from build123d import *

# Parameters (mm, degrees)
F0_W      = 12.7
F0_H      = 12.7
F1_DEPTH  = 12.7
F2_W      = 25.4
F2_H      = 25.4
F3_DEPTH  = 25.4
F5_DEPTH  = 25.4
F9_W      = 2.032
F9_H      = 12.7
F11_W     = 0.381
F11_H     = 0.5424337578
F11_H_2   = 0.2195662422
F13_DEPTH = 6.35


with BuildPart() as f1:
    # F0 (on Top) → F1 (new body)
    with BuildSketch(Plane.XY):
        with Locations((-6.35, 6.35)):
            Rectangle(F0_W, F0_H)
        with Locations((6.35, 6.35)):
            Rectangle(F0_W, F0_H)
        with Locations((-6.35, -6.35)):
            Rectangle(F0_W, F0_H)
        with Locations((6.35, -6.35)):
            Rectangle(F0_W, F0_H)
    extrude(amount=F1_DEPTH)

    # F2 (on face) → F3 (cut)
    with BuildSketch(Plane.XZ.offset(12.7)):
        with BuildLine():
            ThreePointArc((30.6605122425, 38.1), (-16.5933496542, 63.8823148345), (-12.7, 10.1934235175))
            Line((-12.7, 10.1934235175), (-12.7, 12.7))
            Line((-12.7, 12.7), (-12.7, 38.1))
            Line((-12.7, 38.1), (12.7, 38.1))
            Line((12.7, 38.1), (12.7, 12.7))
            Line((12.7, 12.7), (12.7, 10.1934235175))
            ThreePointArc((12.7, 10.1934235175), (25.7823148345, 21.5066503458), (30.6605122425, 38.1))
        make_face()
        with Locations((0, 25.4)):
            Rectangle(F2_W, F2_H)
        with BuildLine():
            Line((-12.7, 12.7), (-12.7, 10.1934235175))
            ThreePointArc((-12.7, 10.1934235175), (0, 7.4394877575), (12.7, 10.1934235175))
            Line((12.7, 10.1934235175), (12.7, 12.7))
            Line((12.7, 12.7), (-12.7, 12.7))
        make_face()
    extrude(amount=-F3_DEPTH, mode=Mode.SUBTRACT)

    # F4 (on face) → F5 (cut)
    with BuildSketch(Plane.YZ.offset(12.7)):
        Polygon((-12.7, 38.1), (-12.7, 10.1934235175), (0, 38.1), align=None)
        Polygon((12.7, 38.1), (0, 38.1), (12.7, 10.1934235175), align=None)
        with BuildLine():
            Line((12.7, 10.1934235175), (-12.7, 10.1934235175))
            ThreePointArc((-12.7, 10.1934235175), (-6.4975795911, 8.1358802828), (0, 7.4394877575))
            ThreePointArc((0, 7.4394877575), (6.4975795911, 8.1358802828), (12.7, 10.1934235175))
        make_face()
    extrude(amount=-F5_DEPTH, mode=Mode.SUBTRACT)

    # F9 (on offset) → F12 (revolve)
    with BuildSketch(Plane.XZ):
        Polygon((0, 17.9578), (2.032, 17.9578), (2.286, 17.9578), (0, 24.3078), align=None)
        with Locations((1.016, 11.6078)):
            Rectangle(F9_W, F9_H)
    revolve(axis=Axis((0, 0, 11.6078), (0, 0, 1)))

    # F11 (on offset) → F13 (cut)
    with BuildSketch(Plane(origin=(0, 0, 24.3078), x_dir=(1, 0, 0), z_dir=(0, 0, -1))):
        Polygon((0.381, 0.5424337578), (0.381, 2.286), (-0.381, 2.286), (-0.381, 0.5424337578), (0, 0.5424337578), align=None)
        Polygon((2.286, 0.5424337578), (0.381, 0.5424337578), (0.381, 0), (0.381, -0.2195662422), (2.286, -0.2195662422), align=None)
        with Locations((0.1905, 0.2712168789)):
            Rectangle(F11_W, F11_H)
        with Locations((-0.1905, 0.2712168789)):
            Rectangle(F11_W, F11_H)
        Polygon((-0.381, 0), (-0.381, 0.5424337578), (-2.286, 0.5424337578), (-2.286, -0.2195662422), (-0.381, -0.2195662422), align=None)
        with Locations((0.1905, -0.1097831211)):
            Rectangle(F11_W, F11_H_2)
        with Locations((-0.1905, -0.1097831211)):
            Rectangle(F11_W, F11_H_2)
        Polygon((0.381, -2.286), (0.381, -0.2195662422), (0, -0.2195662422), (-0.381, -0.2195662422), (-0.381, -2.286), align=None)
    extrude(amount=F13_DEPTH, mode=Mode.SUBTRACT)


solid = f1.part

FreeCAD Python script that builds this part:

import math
import FreeCAD as App
import Part
import Sketcher
Q = App.Units.Quantity

doc = App.newDocument("Part")
params = doc.addObject("Spreadsheet::Sheet", "Params")
for row, (alias, value) in enumerate([
    ("sketch1_width", "1 in"),
    ("pad1_length", "0.5 in"),
    ("pocket1_length", "1 in"),
    ("sketch3_width", "1 in"),
    ("pocket2_length", "1 in"),
    ("sketch4_height", "0.5 in"),
    ("sketch4_width", "0.01 in"),
    ("sketch4_width2", "0.08 in"),
    ("sketch4_height2", "0.75 in"),
    ("revolution_angle", "360 deg"),
    ("sketch5_width", "0.03 in"),
    ("sketch5_width2", "0.075 in"),
    ("pocket3_length", "0.25 in"),
], start=1):
    params.set(f"A{row}", alias)
    params.set(f"B{row}", "=" + value)
    params.setAlias(f"B{row}", alias)

body = doc.addObject("PartDesign::Body", "Body")

# Sketch on XY plane
sketch1 = body.newObject("Sketcher::SketchObject", "Sketch")
sketch1.AttachmentSupport = (doc.getObject("XY_Plane"), [""])
sketch1.MapMode = "FlatFace"
sketch1.addGeometry(Part.LineSegment(App.Vector(-13, 13, 0), App.Vector(-13, -13, 0)), False)
sketch1.addGeometry(Part.LineSegment(App.Vector(-13, -13, 0), App.Vector(13, -13, 0)), False)
sketch1.addGeometry(Part.LineSegment(App.Vector(13, -13, 0), App.Vector(13, 13, 0)), False)
sketch1.addGeometry(Part.LineSegment(App.Vector(13, 13, 0), App.Vector(-13, 13, 0)), False)
sketch1.addConstraint(Sketcher.Constraint("Coincident", 0, 2, 1, 1))
sketch1.addConstraint(Sketcher.Constraint("Coincident", 1, 2, 2, 1))
sketch1.addConstraint(Sketcher.Constraint("Coincident", 2, 2, 3, 1))
sketch1.addConstraint(Sketcher.Constraint("Coincident", 3, 2, 0, 1))
sketch1.addConstraint(Sketcher.Constraint("Vertical", 0))
sketch1.addConstraint(Sketcher.Constraint("Horizontal", 1))
sketch1.addConstraint(Sketcher.Constraint("Vertical", 2))
sketch1.addConstraint(Sketcher.Constraint("Horizontal", 3))
sketch1.addConstraint(Sketcher.Constraint("Symmetric", 0, 2, 2, 2, -1, 1))
sketch1.addConstraint(Sketcher.Constraint("Equal", 3, 0))
sketch1.addConstraint(Sketcher.Constraint("DistanceX", 1, 1, 1, 2, Q("1 in")))
sketch1.setExpression("Constraints[10]", "Params.sketch1_width")
pad1 = body.newObject("PartDesign::Pad", "Pad")
pad1.Profile = sketch1
pad1.setExpression("Length", "Params.pad1_length")

# Sketch on XZ plane
sketch2 = body.newObject("Sketcher::SketchObject", "Sketch001")
sketch2.AttachmentSupport = (doc.getObject("XZ_Plane"), [""])
sketch2.MapMode = "FlatFace"
sketch2.AttachmentOffset = App.Placement(App.Vector(0, 0, 0.5 * 25.4), App.Rotation())
sketch2.addGeometry(Part.ArcOfCircle(Part.Circle(App.Vector(0, 38, 0), App.Vector(0, 0, 1), 31), math.radians(0), math.radians(246)), False)
sketch2.addGeometry(Part.ArcOfCircle(Part.Circle(App.Vector(0, 38, 0), App.Vector(0, 0, 1), 31), math.radians(-114), math.radians(-66)), False)
sketch2.addGeometry(Part.ArcOfCircle(Part.Circle(App.Vector(0, 38, 0), App.Vector(0, 0, 1), 31), math.radians(-66), math.radians(0)), False)
sketch2.addConstraint(Sketcher.Constraint("Tangent", 0, 2, 1, 1))
sketch2.addConstraint(Sketcher.Constraint("Tangent", 1, 2, 2, 1))
sketch2.addConstraint(Sketcher.Constraint("Tangent", 2, 2, 0, 1))
sketch2.addConstraint(Sketcher.Constraint("Symmetric", 0, 2, 1, 2, -2))
sketch2.addConstraint(Sketcher.Constraint("Horizontal", 1, 3, 2, 2))
sketch2.addConstraint(Sketcher.Constraint("DistanceX", 0, 2, 1, 2, Q("1 in")))
sketch2.addConstraint(Sketcher.Constraint("DistanceY", -1, 1, 0, 3, Q("1.5 in")))
sketch2.addConstraint(Sketcher.Constraint("Radius", 0, Q("30.660512 mm")))
pocket1 = body.newObject("PartDesign::Pocket", "Pocket")
pocket1.Profile = sketch2
pocket1.setExpression("Length", "Params.pocket1_length")

# Sketch on YZ plane
sketch3 = body.newObject("Sketcher::SketchObject", "Sketch002")
sketch3.AttachmentSupport = (doc.getObject("YZ_Plane"), [""])
sketch3.MapMode = "FlatFace"
sketch3.AttachmentOffset = App.Placement(App.Vector(0, 0, 0.5 * 25.4), App.Rotation())
sketch3.addGeometry(Part.LineSegment(App.Vector(-13, 38, 0), App.Vector(-13, 10, 0)), False)
sketch3.addGeometry(Part.LineSegment(App.Vector(-13, 10, 0), App.Vector(0, 38, 0)), False)
sketch3.addGeometry(Part.LineSegment(App.Vector(0, 38, 0), App.Vector(-13, 38, 0)), False)
sketch3.addGeometry(Part.LineSegment(App.Vector(13, 38, 0), App.Vector(0, 38, 0)), False)
sketch3.addGeometry(Part.LineSegment(App.Vector(0, 38, 0), App.Vector(13, 10, 0)), False)
sketch3.addGeometry(Part.LineSegment(App.Vector(13, 10, 0), App.Vector(13, 38, 0)), False)
sketch3.addGeometry(Part.LineSegment(App.Vector(13, 10, 0), App.Vector(-13, 10, 0)), False)
sketch3.addGeometry(Part.ArcOfCircle(Part.Circle(App.Vector(0, 38, 0), App.Vector(0, 0, 1), 31), math.radians(-114), math.radians(-90)), False)
sketch3.addGeometry(Part.ArcOfCircle(Part.Circle(App.Vector(0, 38, 0), App.Vector(0, 0, 1), 31), math.radians(-90), math.radians(-66)), False)
sketch3.addConstraint(Sketcher.Constraint("Coincident", 0, 2, 1, 1))
sketch3.addConstraint(Sketcher.Constraint("Coincident", 1, 2, 2, 1))
sketch3.addConstraint(Sketcher.Constraint("Coincident", 2, 2, 0, 1))
sketch3.addConstraint(Sketcher.Constraint("Coincident", 3, 2, 4, 1))
sketch3.addConstraint(Sketcher.Constraint("Coincident", 4, 2, 5, 1))
sketch3.addConstraint(Sketcher.Constraint("Coincident", 5, 2, 3, 1))
sketch3.addConstraint(Sketcher.Constraint("Coincident", 6, 2, 7, 1))
sketch3.addConstraint(Sketcher.Constraint("Tangent", 7, 2, 8, 1))
sketch3.addConstraint(Sketcher.Constraint("Coincident", 8, 2, 6, 1))
sketch3.addConstraint(Sketcher.Constraint("Vertical", 0))
sketch3.addConstraint(Sketcher.Constraint("Horizontal", 2))
sketch3.addConstraint(Sketcher.Constraint("Horizontal", 3))
sketch3.addConstraint(Sketcher.Constraint("Vertical", 5))
sketch3.addConstraint(Sketcher.Constraint("Horizontal", 6))
sketch3.addConstraint(Sketcher.Constraint("Coincident", 1, 2, 7, 3))
sketch3.addConstraint(Sketcher.Constraint("Coincident", 3, 2, 7, 3))
sketch3.addConstraint(Sketcher.Constraint("Coincident", 6, 2, 0, 2))
sketch3.addConstraint(Sketcher.Constraint("Coincident", 8, 2, 4, 2))
sketch3.addConstraint(Sketcher.Constraint("Equal", 7, 8))
sketch3.addConstraint(Sketcher.Constraint("PointOnObject", 7, 3, -2))
sketch3.addConstraint(Sketcher.Constraint("PointOnObject", 7, 2, -2))
sketch3.addConstraint(Sketcher.Constraint("DistanceX", 6, 2, 6, 1, Q("1 in")))
sketch3.addConstraint(Sketcher.Constraint("DistanceY", -1, 1, 7, 3, Q("1.5 in")))
sketch3.addConstraint(Sketcher.Constraint("Radius", 7, Q("30.660512 mm")))
sketch3.setExpression("Constraints[21]", "Params.sketch3_width")
pocket2 = body.newObject("PartDesign::Pocket", "Pocket001")
pocket2.Profile = sketch3
pocket2.setExpression("Length", "Params.pocket2_length")

# Sketch on XZ plane
sketch4 = body.newObject("Sketcher::SketchObject", "Sketch003")
sketch4.AttachmentSupport = (doc.getObject("XZ_Plane"), [""])
sketch4.MapMode = "FlatFace"
sketch4.addGeometry(Part.LineSegment(App.Vector(2.03, 17.96, 0), App.Vector(2.29, 17.96, 0)), False)
sketch4.addGeometry(Part.LineSegment(App.Vector(2.29, 17.96, 0), App.Vector(0, 24.31, 0)), False)
sketch4.addGeometry(Part.LineSegment(App.Vector(0, 24.31, 0), App.Vector(0, 5.26, 0)), False)
sketch4.addGeometry(Part.LineSegment(App.Vector(0, 5.26, 0), App.Vector(2.03, 5.26, 0)), False)
sketch4.addGeometry(Part.LineSegment(App.Vector(2.03, 5.26, 0), App.Vector(2.03, 17.96, 0)), False)
sketch4.addConstraint(Sketcher.Constraint("Coincident", 0, 2, 1, 1))
sketch4.addConstraint(Sketcher.Constraint("Coincident", 1, 2, 2, 1))
sketch4.addConstraint(Sketcher.Constraint("Coincident", 2, 2, 3, 1))
sketch4.addConstraint(Sketcher.Constraint("Coincident", 3, 2, 4, 1))
sketch4.addConstraint(Sketcher.Constraint("Coincident", 4, 2, 0, 1))
sketch4.addConstraint(Sketcher.Constraint("Horizontal", 0))
sketch4.addConstraint(Sketcher.Constraint("Vertical", 2))
sketch4.addConstraint(Sketcher.Constraint("Horizontal", 3))
sketch4.addConstraint(Sketcher.Constraint("Vertical", 4))
sketch4.addConstraint(Sketcher.Constraint("PointOnObject", 1, 2, -2))
sketch4.addConstraint(Sketcher.Constraint("DistanceY", 4, 1, 4, 2, Q("0.5 in")))
sketch4.addConstraint(Sketcher.Constraint("DistanceX", 0, 1, 0, 2, Q("0.01 in")))
sketch4.addConstraint(Sketcher.Constraint("DistanceX", 3, 1, 3, 2, Q("0.08 in")))
sketch4.addConstraint(Sketcher.Constraint("DistanceY", 2, 2, 2, 1, Q("0.75 in")))
sketch4.addConstraint(Sketcher.Constraint("DistanceY", -1, 1, 0, 2, Q("0.707 in")))
sketch4.setExpression("Constraints[10]", "Params.sketch4_height")
sketch4.setExpression("Constraints[11]", "Params.sketch4_width")
sketch4.setExpression("Constraints[12]", "Params.sketch4_width2")
sketch4.setExpression("Constraints[13]", "Params.sketch4_height2")
revolution = body.newObject("PartDesign::Revolution", "Revolution")
revolution.Profile = sketch4
revolution.ReferenceAxis = (sketch4, ["V_Axis"])
revolution.setExpression("Angle", "Params.revolution_angle")

# Sketch on XY plane
sketch5 = body.newObject("Sketcher::SketchObject", "Sketch004")
sketch5.AttachmentSupport = (doc.getObject("XY_Plane"), [""])
sketch5.MapMode = "FlatFace"
sketch5.AttachmentOffset = App.Placement(App.Vector(0, 0, 0.957 * 25.4), App.Rotation())
sketch5.addGeometry(Part.LineSegment(App.Vector(0.4, -0.5, 0), App.Vector(0.4, -2.3, 0)), False)
sketch5.addGeometry(Part.LineSegment(App.Vector(0.4, -2.3, 0), App.Vector(-0.4, -2.3, 0)), False)
sketch5.addGeometry(Part.LineSegment(App.Vector(-0.4, -2.3, 0), App.Vector(-0.4, -0.5, 0)), False)
sketch5.addGeometry(Part.LineSegment(App.Vector(-0.4, -0.5, 0), App.Vector(-2.3, -0.5, 0)), False)
sketch5.addGeometry(Part.LineSegment(App.Vector(-2.3, -0.5, 0), App.Vector(-2.3, 0.2, 0)), False)
sketch5.addGeometry(Part.LineSegment(App.Vector(-2.3, 0.2, 0), App.Vector(-0.4, 0.2, 0)), False)
sketch5.addGeometry(Part.LineSegment(App.Vector(-0.4, 0.2, 0), App.Vector(-0.4, 2.3, 0)), False)
sketch5.addGeometry(Part.LineSegment(App.Vector(-0.4, 2.3, 0), App.Vector(0.4, 2.3, 0)), False)
sketch5.addGeometry(Part.LineSegment(App.Vector(0.4, 2.3, 0), App.Vector(0.4, 0.2, 0)), False)
sketch5.addGeometry(Part.LineSegment(App.Vector(0.4, 0.2, 0), App.Vector(2.3, 0.2, 0)), False)
sketch5.addGeometry(Part.LineSegment(App.Vector(2.3, 0.2, 0), App.Vector(2.3, -0.5, 0)), False)
sketch5.addGeometry(Part.LineSegment(App.Vector(2.3, -0.5, 0), App.Vector(0.4, -0.5, 0)), False)
sketch5.addConstraint(Sketcher.Constraint("Coincident", 0, 2, 1, 1))
sketch5.addConstraint(Sketcher.Constraint("Coincident", 1, 2, 2, 1))
sketch5.addConstraint(Sketcher.Constraint("Coincident", 2, 2, 3, 1))
sketch5.addConstraint(Sketcher.Constraint("Coincident", 3, 2, 4, 1))
sketch5.addConstraint(Sketcher.Constraint("Coincident", 4, 2, 5, 1))
sketch5.addConstraint(Sketcher.Constraint("Coincident", 5, 2, 6, 1))
sketch5.addConstraint(Sketcher.Constraint("Coincident", 6, 2, 7, 1))
sketch5.addConstraint(Sketcher.Constraint("Coincident", 7, 2, 8, 1))
sketch5.addConstraint(Sketcher.Constraint("Coincident", 8, 2, 9, 1))
sketch5.addConstraint(Sketcher.Constraint("Coincident", 9, 2, 10, 1))
sketch5.addConstraint(Sketcher.Constraint("Coincident", 10, 2, 11, 1))
sketch5.addConstraint(Sketcher.Constraint("Coincident", 11, 2, 0, 1))
sketch5.addConstraint(Sketcher.Constraint("Vertical", 0))
sketch5.addConstraint(Sketcher.Constraint("Horizontal", 1))
sketch5.addConstraint(Sketcher.Constraint("Vertical", 2))
sketch5.addConstraint(Sketcher.Constraint("Horizontal", 3))
sketch5.addConstraint(Sketcher.Constraint("Vertical", 4))
sketch5.addConstraint(Sketcher.Constraint("Horizontal", 5))
sketch5.addConstraint(Sketcher.Constraint("Vertical", 6))
sketch5.addConstraint(Sketcher.Constraint("Horizontal", 7))
sketch5.addConstraint(Sketcher.Constraint("Vertical", 8))
sketch5.addConstraint(Sketcher.Constraint("Horizontal", 9))
sketch5.addConstraint(Sketcher.Constraint("Vertical", 10))
sketch5.addConstraint(Sketcher.Constraint("Horizontal", 11))
sketch5.addConstraint(Sketcher.Constraint("Symmetric", 0, 2, 6, 2, -1, 1))
sketch5.addConstraint(Sketcher.Constraint("Symmetric", 5, 2, 8, 2, -2))
sketch5.addConstraint(Sketcher.Constraint("Symmetric", 3, 2, 10, 2, -2))
sketch5.addConstraint(Sketcher.Constraint("Vertical", 2, 2, 5, 2))
sketch5.addConstraint(Sketcher.Constraint("Equal", 7, 4))
sketch5.addConstraint(Sketcher.Constraint("DistanceX", 1, 2, 1, 1, Q("0.03 in")))
sketch5.addConstraint(Sketcher.Constraint("DistanceX", 3, 2, 3, 1, Q("0.075 in")))
sketch5.addConstraint(Sketcher.Constraint("DistanceY", 0, 2, -1, 1, Q("0.09 in")))
sketch5.addConstraint(Sketcher.Constraint("DistanceY", 0, 2, 0, 1, Q("1.743566 mm")))
sketch5.setExpression("Constraints[29]", "Params.sketch5_width")
sketch5.setExpression("Constraints[30]", "Params.sketch5_width2")
pocket3 = body.newObject("PartDesign::Pocket", "Pocket002")
pocket3.Profile = sketch5
pocket3.setExpression("Length", "Params.pocket3_length")

doc.recompute()
